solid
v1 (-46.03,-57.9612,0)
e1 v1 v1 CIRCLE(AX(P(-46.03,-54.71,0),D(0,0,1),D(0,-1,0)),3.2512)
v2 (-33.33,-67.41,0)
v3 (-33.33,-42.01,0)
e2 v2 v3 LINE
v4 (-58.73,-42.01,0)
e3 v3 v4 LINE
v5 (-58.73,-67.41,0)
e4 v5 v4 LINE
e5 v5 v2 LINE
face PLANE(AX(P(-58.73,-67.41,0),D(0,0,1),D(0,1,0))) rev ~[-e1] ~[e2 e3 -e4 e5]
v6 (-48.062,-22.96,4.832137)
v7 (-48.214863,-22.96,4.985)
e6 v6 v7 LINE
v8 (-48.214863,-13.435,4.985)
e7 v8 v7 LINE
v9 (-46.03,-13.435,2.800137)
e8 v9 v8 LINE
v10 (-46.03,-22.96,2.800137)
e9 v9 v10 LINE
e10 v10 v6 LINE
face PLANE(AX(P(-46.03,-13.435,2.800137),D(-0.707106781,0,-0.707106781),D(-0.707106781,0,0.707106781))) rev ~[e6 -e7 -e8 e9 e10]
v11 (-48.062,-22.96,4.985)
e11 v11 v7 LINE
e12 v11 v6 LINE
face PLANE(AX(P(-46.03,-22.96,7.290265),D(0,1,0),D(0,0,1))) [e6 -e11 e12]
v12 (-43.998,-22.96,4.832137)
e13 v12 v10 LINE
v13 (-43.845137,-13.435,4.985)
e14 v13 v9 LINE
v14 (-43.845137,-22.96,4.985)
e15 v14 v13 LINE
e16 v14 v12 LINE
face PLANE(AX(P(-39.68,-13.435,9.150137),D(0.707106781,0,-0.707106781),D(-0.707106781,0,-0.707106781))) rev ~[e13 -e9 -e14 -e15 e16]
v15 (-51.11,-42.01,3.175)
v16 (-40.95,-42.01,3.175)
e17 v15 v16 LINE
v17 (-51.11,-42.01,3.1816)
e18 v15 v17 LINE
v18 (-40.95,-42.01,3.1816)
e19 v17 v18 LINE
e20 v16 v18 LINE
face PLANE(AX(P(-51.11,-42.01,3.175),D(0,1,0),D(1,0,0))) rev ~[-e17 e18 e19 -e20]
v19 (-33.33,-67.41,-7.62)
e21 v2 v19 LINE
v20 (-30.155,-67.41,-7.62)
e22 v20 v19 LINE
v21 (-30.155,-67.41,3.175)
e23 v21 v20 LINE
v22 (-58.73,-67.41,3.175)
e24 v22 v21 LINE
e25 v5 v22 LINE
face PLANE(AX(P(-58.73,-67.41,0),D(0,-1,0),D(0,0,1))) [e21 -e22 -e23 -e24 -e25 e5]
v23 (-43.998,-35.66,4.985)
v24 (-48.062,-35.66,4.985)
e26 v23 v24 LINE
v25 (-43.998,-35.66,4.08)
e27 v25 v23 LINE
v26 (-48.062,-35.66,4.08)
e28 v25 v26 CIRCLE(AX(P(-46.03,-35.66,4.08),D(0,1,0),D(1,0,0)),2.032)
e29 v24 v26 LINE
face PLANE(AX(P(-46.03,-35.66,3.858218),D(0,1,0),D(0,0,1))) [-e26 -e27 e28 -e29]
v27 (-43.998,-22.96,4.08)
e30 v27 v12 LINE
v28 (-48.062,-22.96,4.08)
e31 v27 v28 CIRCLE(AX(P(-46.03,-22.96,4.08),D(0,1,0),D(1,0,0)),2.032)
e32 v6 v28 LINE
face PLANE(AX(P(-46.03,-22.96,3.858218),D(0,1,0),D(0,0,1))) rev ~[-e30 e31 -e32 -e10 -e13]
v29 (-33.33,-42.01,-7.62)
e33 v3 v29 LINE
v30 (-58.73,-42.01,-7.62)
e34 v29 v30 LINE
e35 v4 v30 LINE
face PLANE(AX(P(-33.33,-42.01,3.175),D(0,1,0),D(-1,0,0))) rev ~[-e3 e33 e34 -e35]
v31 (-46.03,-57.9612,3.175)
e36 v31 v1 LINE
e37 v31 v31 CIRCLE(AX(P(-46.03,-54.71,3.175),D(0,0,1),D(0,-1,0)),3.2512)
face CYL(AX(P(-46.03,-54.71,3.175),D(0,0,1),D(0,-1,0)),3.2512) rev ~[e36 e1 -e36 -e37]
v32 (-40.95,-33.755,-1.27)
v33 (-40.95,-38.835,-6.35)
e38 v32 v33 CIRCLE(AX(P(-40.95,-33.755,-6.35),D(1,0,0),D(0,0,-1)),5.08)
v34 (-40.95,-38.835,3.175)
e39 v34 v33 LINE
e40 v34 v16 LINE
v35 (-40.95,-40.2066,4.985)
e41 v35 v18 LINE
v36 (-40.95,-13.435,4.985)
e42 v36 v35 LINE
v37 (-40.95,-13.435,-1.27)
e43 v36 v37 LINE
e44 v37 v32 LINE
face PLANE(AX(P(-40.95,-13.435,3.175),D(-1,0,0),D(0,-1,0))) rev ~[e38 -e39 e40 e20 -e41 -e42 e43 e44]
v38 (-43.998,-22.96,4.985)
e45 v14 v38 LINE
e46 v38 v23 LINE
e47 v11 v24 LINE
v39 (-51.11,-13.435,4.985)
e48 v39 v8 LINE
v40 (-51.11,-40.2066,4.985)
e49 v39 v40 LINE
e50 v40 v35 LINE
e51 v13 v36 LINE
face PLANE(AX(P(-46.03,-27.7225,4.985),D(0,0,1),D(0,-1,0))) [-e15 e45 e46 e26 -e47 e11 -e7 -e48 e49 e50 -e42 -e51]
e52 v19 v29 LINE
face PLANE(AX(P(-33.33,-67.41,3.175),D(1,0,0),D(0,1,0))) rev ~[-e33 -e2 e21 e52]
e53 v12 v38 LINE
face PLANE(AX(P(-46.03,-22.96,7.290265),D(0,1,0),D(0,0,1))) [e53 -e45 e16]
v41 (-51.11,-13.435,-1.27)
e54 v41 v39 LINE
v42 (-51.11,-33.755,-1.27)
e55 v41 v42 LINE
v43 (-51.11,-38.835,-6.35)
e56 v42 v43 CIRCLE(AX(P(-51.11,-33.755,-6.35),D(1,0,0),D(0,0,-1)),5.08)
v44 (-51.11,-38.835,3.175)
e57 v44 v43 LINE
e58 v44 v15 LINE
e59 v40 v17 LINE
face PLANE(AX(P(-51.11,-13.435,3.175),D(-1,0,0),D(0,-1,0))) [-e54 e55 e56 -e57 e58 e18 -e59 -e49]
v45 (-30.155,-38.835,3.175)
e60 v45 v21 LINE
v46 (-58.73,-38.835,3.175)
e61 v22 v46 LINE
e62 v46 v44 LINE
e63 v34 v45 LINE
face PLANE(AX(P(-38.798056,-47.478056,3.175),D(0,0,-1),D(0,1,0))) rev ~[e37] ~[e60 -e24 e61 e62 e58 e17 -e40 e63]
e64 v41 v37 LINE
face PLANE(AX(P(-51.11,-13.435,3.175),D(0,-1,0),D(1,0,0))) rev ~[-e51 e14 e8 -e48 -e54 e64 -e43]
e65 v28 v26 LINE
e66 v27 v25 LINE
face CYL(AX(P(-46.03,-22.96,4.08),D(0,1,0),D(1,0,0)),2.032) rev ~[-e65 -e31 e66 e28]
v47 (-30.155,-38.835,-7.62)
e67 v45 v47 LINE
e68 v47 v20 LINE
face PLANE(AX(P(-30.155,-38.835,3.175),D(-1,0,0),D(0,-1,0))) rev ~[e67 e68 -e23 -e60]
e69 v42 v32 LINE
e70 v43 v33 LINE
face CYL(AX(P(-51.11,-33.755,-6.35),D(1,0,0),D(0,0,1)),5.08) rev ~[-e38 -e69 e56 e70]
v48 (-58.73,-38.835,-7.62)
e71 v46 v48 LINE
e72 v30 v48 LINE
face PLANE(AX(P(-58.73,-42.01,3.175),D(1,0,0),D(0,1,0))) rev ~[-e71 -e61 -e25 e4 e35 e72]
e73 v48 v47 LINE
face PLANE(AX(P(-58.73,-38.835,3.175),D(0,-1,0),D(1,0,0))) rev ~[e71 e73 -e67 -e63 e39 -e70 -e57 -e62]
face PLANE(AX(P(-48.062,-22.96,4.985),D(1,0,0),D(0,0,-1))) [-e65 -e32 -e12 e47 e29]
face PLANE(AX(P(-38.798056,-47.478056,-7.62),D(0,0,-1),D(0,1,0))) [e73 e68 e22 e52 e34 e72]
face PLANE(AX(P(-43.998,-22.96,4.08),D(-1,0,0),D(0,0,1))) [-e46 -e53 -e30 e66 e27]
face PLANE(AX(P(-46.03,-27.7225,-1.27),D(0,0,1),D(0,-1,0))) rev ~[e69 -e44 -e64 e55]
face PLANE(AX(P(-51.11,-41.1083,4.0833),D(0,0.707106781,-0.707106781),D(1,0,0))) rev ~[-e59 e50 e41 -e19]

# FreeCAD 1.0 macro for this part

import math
import FreeCAD as App
import Part
import Sketcher
Q = App.Units.Quantity


def edges_at(feature, points):
    """Names of the edges that pass closest to the given points."""
    edges = feature.Shape.Edges
    near = lambda p: min(range(len(edges)), key=lambda i: edges[i].distToShape(Part.Vertex(*p))[0])
    return sorted({f"Edge{near(p) + 1}" for p in points})

doc = App.newDocument("Part")
body = doc.addObject("PartDesign::Body", "Body")

# Sketch on XY plane
sketch1 = doc.addObject("Sketcher::SketchObject", "Sketch")
body.addObject(sketch1)
sketch1.AttachmentSupport = (doc.XY_Plane, [""])
sketch1.MapMode = "FlatFace"
sketch1.addGeometry([
    Part.LineSegment(App.Vector(-25.4, 3.2, 0), App.Vector(-25.4, 0, 0)),
    Part.LineSegment(App.Vector(-25.4, 0, 0), App.Vector(0, 0, 0)),
    Part.LineSegment(App.Vector(0, 0, 0), App.Vector(0, 3.2, 0)),
    Part.LineSegment(App.Vector(0, 3.2, 0), App.Vector(-25.4, 3.2, 0)),
], False)
sketch1.addConstraint([
    Sketcher.Constraint("Coincident", 0, 2, 1, 1),
    Sketcher.Constraint("Coincident", 1, 2, 2, 1),
    Sketcher.Constraint("Coincident", 2, 2, 3, 1),
    Sketcher.Constraint("Coincident", 3, 2, 0, 1),
    Sketcher.Constraint("Vertical", 0),
    Sketcher.Constraint("Horizontal", 1),
    Sketcher.Constraint("Vertical", 2),
    Sketcher.Constraint("Horizontal", 3),
    Sketcher.Constraint("Coincident", 1, 2, -1, 1),
    Sketcher.Constraint("DistanceX", 1, 1, 1, 2, Q("1 in")),
    Sketcher.Constraint("DistanceY", 0, 2, 0, 1, Q("0.125 in")),
])
pad1 = doc.addObject("PartDesign::Pad", "Pad")
body.addObject(pad1)
pad1.Profile = sketch1
pad1.Length = Q("1 in")

# Sketch on XZ plane
sketch2 = doc.addObject("Sketcher::SketchObject", "Sketch001")
body.addObject(sketch2)
sketch2.AttachmentSupport = (doc.XZ_Plane, [""])
sketch2.MapMode = "FlatFace"
sketch2.AttachmentOffset = App.Placement(App.Vector(0, 0, -0.125 * 25.4), App.Rotation())
sketch2.addGeometry([
    Part.LineSegment(App.Vector(29, 18, 0), App.Vector(29, 8, 0)),
    Part.LineSegment(App.Vector(29, 8, 0), App.Vector(0, 8, 0)),
    Part.LineSegment(App.Vector(0, 8, 0), App.Vector(0, 18, 0)),
    Part.LineSegment(App.Vector(0, 18, 0), App.Vector(29, 18, 0)),
], False)
sketch2.addConstraint([
    Sketcher.Constraint("Coincident", 0, 2, 1, 1),
    Sketcher.Constraint("Coincident", 1, 2, 2, 1),
    Sketcher.Constraint("Coincident", 2, 2, 3, 1),
    Sketcher.Constraint("Coincident", 3, 2, 0, 1),
    Sketcher.Constraint("Vertical", 0),
    Sketcher.Constraint("Horizontal", 1),
    Sketcher.Constraint("Vertical", 2),
    Sketcher.Constraint("Horizontal", 3),
    Sketcher.Constraint("PointOnObject", 1, 2, -2),
    Sketcher.Constraint("DistanceY", 0, 2, 0, 1, Q("0.4 in")),
    Sketcher.Constraint("DistanceY", -1, 1, 0, 2, Q("0.3 in")),
    Sketcher.Constraint("DistanceX", 1, 2, 1, 1, Q("1.125 in")),
])
pad2 = doc.addObject("PartDesign::Pad", "Pad001")
body.addObject(pad2)
pad2.Profile = sketch2
pad2.Type = "TwoLengths"
pad2.Length = 1.81
pad2.Length2 = Q("0.175 in")
pad2.Reversed = True

# Sketch on YZ plane
sketch3 = doc.addObject("Sketcher::SketchObject", "Sketch002")
body.addObject(sketch3)
sketch3.AttachmentSupport = (doc.YZ_Plane, [""])
sketch3.MapMode = "FlatFace"
sketch3.AttachmentOffset = App.Placement(App.Vector(0, 0, 1.125 * 25.4), App.Rotation())
sketch3.addGeometry([
    Part.LineSegment(App.Vector(9, 19, 0), App.Vector(3, 13, 0)),
    Part.LineSegment(App.Vector(3, 13, 0), App.Vector(9, 6, 0)),
    Part.LineSegment(App.Vector(9, 6, 0), App.Vector(9, 19, 0)),
], False)
sketch3.addConstraint([
    Sketcher.Constraint("Coincident", 0, 2, 1, 1),
    Sketcher.Constraint("Coincident", 1, 2, 2, 1),
    Sketcher.Constraint("Coincident", 2, 2, 0, 1),
    Sketcher.Constraint("Vertical", 2),
    Sketcher.Constraint("Perpendicular", 0, 1),
    Sketcher.Constraint("Equal", 0, 1),
    Sketcher.Constraint("DistanceY", 2, 1, 2, 2, Q("0.5 in")),
    Sketcher.Constraint("DistanceY", -1, 1, 0, 2, Q("0.5 in")),
    Sketcher.Constraint("DistanceX", -1, 1, 0, 2, 2.800137),
])
pocket1 = doc.addObject("PartDesign::Pocket", "Pocket")
body.addObject(pocket1)
pocket1.Profile = sketch3
pocket1.Length = Q("0.375 in")

# Sketch on YZ plane
sketch4 = doc.addObject("Sketcher::SketchObject", "Sketch003")
body.addObject(sketch4)
sketch4.AttachmentSupport = (doc.YZ_Plane, [""])
sketch4.MapMode = "FlatFace"
sketch4.AttachmentOffset = App.Placement(App.Vector(0, 0, 0.75 * 25.4), App.Rotation())
sketch4.addGeometry([
    Part.ArcOfCircle(Part.Circle(App.Vector(4.1, 12.7, 0), App.Vector(0, 0, 1), 2), math.radians(90), math.radians(270)),
    Part.LineSegment(App.Vector(4.1, 10.7, 0), App.Vector(5, 10.7, 0)),
    Part.LineSegment(App.Vector(5, 10.7, 0), App.Vector(5, 14.7, 0)),
    Part.LineSegment(App.Vector(5, 14.7, 0), App.Vector(4.1, 14.7, 0)),
], False)
sketch4.addConstraint([
    Sketcher.Constraint("Tangent", 0, 2, 1, 1),
    Sketcher.Constraint("Coincident", 1, 2, 2, 1),
    Sketcher.Constraint("Coincident", 2, 2, 3, 1),
    Sketcher.Constraint("Tangent", 3, 2, 0, 1),
    Sketcher.Constraint("Horizontal", 1),
    Sketcher.Constraint("Vertical", 2),
    Sketcher.Constraint("Horizontal", 3),
    Sketcher.Constraint("Radius", 0, Q("0.08 in")),
    Sketcher.Constraint("DistanceY", -1, 1, 0, 3, Q("0.5 in")),
    Sketcher.Constraint("DistanceX", 1, 1, 1, 2, 0.905),
    Sketcher.Constraint("DistanceX", -1, 1, 0, 3, 4.08),
])
pocket2 = doc.addObject("PartDesign::Pocket", "Pocket001")
body.addObject(pocket2)
pocket2.Profile = sketch4
pocket2.Length = Q("0.5 in")
doc.recompute()

chamfer = doc.addObject("PartDesign::Chamfer", "Chamfer")
body.addObject(chamfer)
chamfer.Base = (pocket2, edges_at(pocket2, [(0, 4.985, 12.7)]))
chamfer.Size = Q("0.071 in")

# Sketch on XZ plane
sketch5 = doc.addObject("Sketcher::SketchObject", "Sketch004")
body.addObject(sketch5)
sketch5.AttachmentSupport = (doc.XZ_Plane, [""])
sketch5.MapMode = "FlatFace"
sketch5.AttachmentOffset = App.Placement(App.Vector(0, 0, -0.125 * 25.4), App.Rotation())
sketch5.addGeometry(Part.Circle(App.Vector(-12.7, 12.7, 0), App.Vector(0, 0, 1), 3.3), False)
sketch5.addConstraint([
    Sketcher.Constraint("Diameter", 0, Q("0.256 in")),
    Sketcher.Constraint("DistanceX", 0, 3, -1, 1, Q("0.5 in")),
    Sketcher.Constraint("DistanceY", -1, 1, 0, 3, Q("0.5 in")),
])
pocket3 = doc.addObject("PartDesign::Pocket", "Pocket002")
body.addObject(pocket3)
pocket3.Profile = sketch5
pocket3.Type = "ThroughAll"
pocket3.Reversed = True

# Sketch on XZ plane
sketch6 = doc.addObject("Sketcher::SketchObject", "Sketch005")
body.addObject(sketch6)
sketch6.AttachmentSupport = (doc.XZ_Plane, [""])
sketch6.MapMode = "FlatFace"
sketch6.AttachmentOffset = App.Placement(App.Vector(0, 0, -0.125 * 25.4), App.Rotation())
sketch6.addGeometry([
    Part.LineSegment(App.Vector(3.2, 0, 0), App.Vector(0, 0, 0)),  # 0
    Part.LineSegment(App.Vector(0, 0, 0), App.Vector(0, 25.4, 0)),  # 1
    Part.LineSegment(App.Vector(0, 25.4, 0), App.Vector(-25.4, 25.4, 0)),  # 2
    Part.LineSegment(App.Vector(-25.4, 25.4, 0), App.Vector(-25.4, 28.6, 0)),  # 3
    Part.LineSegment(App.Vector(-25.4, 28.6, 0), App.Vector(3.2, 28.6, 0)),  # 4
    Part.LineSegment(App.Vector(3.2, 28.6, 0), App.Vector(3.2, 0, 0)),  # 5
], False)
sketch6.addConstraint([
    Sketcher.Constraint("Coincident", 0, 2, 1, 1),
    Sketcher.Constraint("Coincident", 1, 2, 2, 1),
    Sketcher.Constraint("Coincident", 2, 2, 3, 1),
    Sketcher.Constraint("Coincident", 3, 2, 4, 1),
    Sketcher.Constraint("Coincident", 4, 2, 5, 1),
    Sketcher.Constraint("Coincident", 5, 2, 0, 1),
    Sketcher.Constraint("Horizontal", 0),
    Sketcher.Constraint("Vertical", 1),
    Sketcher.Constraint("Horizontal", 2),
    Sketcher.Constraint("Vertical", 3),
    Sketcher.Constraint("Horizontal", 4),
    Sketcher.Constraint("Vertical", 5),
    Sketcher.Constraint("Coincident", 0, 2, -1, 1),
    Sketcher.Constraint("Equal", 2, 1),
    Sketcher.Constraint("Equal", 0, 3),
    Sketcher.Constraint("DistanceX", 2, 2, 2, 1, Q("1 in")),
    Sketcher.Constraint("DistanceX", 0, 2, 0, 1, Q("0.125 in")),
])
pad3 = doc.addObject("PartDesign::Pad", "Pad002")
body.addObject(pad3)
pad3.Profile = sketch6
pad3.Length = Q("0.425 in")
doc.recompute()

fillet = doc.addObject("PartDesign::Fillet", "Fillet")
body.addObject(fillet)
fillet.Base = (pad3, edges_at(pad3, [(3.175, -1.27, 12.7)]))
fillet.Radius = Q("0.2 in")
body2 = doc.addObject("PartDesign::Body", "Body001")
doc.recompute()

body.Placement = App.Placement(App.Vector(0, 0, 0), App.Rotation(App.Vector(1, 0, 0), 90))
boolean = doc.addObject("PartDesign::Boolean", "Boolean")
body2.addObject(boolean)
boolean.Type = "Fuse"
boolean.addObjects([body])
body3 = doc.addObject("PartDesign::Body", "Body002")
doc.recompute()

body2.Placement = App.Placement(App.Vector(-58.73, -42.01, 0), App.Rotation(App.Vector(0, 0, 1), 90))
boolean2 = doc.addObject("PartDesign::Boolean", "Boolean001")
body3.addObject(boolean2)
boolean2.Type = "Fuse"
boolean2.addObjects([body2])

doc.recompute()
